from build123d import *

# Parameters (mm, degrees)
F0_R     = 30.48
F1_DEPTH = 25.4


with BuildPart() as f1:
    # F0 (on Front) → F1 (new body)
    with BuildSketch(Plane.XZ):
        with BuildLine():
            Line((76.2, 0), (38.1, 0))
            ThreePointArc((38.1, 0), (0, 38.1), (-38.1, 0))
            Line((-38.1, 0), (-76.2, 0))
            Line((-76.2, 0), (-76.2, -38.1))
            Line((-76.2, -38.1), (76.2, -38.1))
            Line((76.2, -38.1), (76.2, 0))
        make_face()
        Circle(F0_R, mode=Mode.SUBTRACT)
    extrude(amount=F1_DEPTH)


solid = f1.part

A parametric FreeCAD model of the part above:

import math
import FreeCAD as App
import Part
import Sketcher
Q = App.Units.Quantity

doc = App.newDocument("Part")
body = doc.addObject("PartDesign::Body", "Body")

# Sketch on XZ plane
sketch1 = doc.addObject("Sketcher::SketchObject", "Sketch")
body.addObject(sketch1)
sketch1.AttachmentSupport = (doc.XZ_Plane, [""])
sketch1.MapMode = "FlatFace"
sketch1.addGeometry([
    Part.LineSegment(App.Vector(76, 0, 0), App.Vector(38, 0, 0)),  # 0
    Part.ArcOfCircle(Part.Circle(App.Vector(0, 0, 0), App.Vector(0, 0, 1), 38), math.radians(0), math.radians(180)),  # 1
    Part.LineSegment(App.Vector(-38, 0, 0), App.Vector(-76, 0, 0)),  # 2
    Part.LineSegment(App.Vector(-76, 0, 0), App.Vector(-76, -38, 0)),  # 3
    Part.LineSegment(App.Vector(-76, -38, 0), App.Vector(76, -38, 0)),  # 4
    Part.LineSegment(App.Vector(76, -38, 0), App.Vector(76, 0, 0)),  # 5
    Part.Circle(App.Vector(0, 0, 0), App.Vector(0, 0, 1), 30),  # 6
], False)
sketch1.addConstraint([
    Sketcher.Constraint("Coincident", 0, 2, 1, 1),
    Sketcher.Constraint("Coincident", 1, 2, 2, 1),
    Sketcher.Constraint("Coincident", 2, 2, 3, 1),
    Sketcher.Constraint("Coincident", 3, 2, 4, 1),
    Sketcher.Constraint("Coincident", 4, 2, 5, 1),
    Sketcher.Constraint("Coincident", 5, 2, 0, 1),
    Sketcher.Constraint("Horizontal", 0),
    Sketcher.Constraint("Horizontal", 2),
    Sketcher.Constraint("Vertical", 3),
    Sketcher.Constraint("Horizontal", 4),
    Sketcher.Constraint("Vertical", 5),
    Sketcher.Constraint("Coincident", 1, 3, -1, 1),
    Sketcher.Constraint("Coincident", 6, 3, -1, 1),
    Sketcher.Constraint("Symmetric", 2, 2, 5, 2, -1, 1),
    Sketcher.Constraint("PointOnObject", 0, 2, -1),
    Sketcher.Constraint("Equal", 2, 3),
    Sketcher.Constraint("Diameter", 6, Q("2.4 in")),
    Sketcher.Constraint("Radius", 1, Q("1.5 in")),
    Sketcher.Constraint("DistanceX", 4, 1, 4, 2, Q("6 in")),
])
pad1 = doc.addObject("PartDesign::Pad", "Pad")
body.addObject(pad1)
pad1.Profile = sketch1
pad1.Length = Q("1 in")

doc.recompute()
